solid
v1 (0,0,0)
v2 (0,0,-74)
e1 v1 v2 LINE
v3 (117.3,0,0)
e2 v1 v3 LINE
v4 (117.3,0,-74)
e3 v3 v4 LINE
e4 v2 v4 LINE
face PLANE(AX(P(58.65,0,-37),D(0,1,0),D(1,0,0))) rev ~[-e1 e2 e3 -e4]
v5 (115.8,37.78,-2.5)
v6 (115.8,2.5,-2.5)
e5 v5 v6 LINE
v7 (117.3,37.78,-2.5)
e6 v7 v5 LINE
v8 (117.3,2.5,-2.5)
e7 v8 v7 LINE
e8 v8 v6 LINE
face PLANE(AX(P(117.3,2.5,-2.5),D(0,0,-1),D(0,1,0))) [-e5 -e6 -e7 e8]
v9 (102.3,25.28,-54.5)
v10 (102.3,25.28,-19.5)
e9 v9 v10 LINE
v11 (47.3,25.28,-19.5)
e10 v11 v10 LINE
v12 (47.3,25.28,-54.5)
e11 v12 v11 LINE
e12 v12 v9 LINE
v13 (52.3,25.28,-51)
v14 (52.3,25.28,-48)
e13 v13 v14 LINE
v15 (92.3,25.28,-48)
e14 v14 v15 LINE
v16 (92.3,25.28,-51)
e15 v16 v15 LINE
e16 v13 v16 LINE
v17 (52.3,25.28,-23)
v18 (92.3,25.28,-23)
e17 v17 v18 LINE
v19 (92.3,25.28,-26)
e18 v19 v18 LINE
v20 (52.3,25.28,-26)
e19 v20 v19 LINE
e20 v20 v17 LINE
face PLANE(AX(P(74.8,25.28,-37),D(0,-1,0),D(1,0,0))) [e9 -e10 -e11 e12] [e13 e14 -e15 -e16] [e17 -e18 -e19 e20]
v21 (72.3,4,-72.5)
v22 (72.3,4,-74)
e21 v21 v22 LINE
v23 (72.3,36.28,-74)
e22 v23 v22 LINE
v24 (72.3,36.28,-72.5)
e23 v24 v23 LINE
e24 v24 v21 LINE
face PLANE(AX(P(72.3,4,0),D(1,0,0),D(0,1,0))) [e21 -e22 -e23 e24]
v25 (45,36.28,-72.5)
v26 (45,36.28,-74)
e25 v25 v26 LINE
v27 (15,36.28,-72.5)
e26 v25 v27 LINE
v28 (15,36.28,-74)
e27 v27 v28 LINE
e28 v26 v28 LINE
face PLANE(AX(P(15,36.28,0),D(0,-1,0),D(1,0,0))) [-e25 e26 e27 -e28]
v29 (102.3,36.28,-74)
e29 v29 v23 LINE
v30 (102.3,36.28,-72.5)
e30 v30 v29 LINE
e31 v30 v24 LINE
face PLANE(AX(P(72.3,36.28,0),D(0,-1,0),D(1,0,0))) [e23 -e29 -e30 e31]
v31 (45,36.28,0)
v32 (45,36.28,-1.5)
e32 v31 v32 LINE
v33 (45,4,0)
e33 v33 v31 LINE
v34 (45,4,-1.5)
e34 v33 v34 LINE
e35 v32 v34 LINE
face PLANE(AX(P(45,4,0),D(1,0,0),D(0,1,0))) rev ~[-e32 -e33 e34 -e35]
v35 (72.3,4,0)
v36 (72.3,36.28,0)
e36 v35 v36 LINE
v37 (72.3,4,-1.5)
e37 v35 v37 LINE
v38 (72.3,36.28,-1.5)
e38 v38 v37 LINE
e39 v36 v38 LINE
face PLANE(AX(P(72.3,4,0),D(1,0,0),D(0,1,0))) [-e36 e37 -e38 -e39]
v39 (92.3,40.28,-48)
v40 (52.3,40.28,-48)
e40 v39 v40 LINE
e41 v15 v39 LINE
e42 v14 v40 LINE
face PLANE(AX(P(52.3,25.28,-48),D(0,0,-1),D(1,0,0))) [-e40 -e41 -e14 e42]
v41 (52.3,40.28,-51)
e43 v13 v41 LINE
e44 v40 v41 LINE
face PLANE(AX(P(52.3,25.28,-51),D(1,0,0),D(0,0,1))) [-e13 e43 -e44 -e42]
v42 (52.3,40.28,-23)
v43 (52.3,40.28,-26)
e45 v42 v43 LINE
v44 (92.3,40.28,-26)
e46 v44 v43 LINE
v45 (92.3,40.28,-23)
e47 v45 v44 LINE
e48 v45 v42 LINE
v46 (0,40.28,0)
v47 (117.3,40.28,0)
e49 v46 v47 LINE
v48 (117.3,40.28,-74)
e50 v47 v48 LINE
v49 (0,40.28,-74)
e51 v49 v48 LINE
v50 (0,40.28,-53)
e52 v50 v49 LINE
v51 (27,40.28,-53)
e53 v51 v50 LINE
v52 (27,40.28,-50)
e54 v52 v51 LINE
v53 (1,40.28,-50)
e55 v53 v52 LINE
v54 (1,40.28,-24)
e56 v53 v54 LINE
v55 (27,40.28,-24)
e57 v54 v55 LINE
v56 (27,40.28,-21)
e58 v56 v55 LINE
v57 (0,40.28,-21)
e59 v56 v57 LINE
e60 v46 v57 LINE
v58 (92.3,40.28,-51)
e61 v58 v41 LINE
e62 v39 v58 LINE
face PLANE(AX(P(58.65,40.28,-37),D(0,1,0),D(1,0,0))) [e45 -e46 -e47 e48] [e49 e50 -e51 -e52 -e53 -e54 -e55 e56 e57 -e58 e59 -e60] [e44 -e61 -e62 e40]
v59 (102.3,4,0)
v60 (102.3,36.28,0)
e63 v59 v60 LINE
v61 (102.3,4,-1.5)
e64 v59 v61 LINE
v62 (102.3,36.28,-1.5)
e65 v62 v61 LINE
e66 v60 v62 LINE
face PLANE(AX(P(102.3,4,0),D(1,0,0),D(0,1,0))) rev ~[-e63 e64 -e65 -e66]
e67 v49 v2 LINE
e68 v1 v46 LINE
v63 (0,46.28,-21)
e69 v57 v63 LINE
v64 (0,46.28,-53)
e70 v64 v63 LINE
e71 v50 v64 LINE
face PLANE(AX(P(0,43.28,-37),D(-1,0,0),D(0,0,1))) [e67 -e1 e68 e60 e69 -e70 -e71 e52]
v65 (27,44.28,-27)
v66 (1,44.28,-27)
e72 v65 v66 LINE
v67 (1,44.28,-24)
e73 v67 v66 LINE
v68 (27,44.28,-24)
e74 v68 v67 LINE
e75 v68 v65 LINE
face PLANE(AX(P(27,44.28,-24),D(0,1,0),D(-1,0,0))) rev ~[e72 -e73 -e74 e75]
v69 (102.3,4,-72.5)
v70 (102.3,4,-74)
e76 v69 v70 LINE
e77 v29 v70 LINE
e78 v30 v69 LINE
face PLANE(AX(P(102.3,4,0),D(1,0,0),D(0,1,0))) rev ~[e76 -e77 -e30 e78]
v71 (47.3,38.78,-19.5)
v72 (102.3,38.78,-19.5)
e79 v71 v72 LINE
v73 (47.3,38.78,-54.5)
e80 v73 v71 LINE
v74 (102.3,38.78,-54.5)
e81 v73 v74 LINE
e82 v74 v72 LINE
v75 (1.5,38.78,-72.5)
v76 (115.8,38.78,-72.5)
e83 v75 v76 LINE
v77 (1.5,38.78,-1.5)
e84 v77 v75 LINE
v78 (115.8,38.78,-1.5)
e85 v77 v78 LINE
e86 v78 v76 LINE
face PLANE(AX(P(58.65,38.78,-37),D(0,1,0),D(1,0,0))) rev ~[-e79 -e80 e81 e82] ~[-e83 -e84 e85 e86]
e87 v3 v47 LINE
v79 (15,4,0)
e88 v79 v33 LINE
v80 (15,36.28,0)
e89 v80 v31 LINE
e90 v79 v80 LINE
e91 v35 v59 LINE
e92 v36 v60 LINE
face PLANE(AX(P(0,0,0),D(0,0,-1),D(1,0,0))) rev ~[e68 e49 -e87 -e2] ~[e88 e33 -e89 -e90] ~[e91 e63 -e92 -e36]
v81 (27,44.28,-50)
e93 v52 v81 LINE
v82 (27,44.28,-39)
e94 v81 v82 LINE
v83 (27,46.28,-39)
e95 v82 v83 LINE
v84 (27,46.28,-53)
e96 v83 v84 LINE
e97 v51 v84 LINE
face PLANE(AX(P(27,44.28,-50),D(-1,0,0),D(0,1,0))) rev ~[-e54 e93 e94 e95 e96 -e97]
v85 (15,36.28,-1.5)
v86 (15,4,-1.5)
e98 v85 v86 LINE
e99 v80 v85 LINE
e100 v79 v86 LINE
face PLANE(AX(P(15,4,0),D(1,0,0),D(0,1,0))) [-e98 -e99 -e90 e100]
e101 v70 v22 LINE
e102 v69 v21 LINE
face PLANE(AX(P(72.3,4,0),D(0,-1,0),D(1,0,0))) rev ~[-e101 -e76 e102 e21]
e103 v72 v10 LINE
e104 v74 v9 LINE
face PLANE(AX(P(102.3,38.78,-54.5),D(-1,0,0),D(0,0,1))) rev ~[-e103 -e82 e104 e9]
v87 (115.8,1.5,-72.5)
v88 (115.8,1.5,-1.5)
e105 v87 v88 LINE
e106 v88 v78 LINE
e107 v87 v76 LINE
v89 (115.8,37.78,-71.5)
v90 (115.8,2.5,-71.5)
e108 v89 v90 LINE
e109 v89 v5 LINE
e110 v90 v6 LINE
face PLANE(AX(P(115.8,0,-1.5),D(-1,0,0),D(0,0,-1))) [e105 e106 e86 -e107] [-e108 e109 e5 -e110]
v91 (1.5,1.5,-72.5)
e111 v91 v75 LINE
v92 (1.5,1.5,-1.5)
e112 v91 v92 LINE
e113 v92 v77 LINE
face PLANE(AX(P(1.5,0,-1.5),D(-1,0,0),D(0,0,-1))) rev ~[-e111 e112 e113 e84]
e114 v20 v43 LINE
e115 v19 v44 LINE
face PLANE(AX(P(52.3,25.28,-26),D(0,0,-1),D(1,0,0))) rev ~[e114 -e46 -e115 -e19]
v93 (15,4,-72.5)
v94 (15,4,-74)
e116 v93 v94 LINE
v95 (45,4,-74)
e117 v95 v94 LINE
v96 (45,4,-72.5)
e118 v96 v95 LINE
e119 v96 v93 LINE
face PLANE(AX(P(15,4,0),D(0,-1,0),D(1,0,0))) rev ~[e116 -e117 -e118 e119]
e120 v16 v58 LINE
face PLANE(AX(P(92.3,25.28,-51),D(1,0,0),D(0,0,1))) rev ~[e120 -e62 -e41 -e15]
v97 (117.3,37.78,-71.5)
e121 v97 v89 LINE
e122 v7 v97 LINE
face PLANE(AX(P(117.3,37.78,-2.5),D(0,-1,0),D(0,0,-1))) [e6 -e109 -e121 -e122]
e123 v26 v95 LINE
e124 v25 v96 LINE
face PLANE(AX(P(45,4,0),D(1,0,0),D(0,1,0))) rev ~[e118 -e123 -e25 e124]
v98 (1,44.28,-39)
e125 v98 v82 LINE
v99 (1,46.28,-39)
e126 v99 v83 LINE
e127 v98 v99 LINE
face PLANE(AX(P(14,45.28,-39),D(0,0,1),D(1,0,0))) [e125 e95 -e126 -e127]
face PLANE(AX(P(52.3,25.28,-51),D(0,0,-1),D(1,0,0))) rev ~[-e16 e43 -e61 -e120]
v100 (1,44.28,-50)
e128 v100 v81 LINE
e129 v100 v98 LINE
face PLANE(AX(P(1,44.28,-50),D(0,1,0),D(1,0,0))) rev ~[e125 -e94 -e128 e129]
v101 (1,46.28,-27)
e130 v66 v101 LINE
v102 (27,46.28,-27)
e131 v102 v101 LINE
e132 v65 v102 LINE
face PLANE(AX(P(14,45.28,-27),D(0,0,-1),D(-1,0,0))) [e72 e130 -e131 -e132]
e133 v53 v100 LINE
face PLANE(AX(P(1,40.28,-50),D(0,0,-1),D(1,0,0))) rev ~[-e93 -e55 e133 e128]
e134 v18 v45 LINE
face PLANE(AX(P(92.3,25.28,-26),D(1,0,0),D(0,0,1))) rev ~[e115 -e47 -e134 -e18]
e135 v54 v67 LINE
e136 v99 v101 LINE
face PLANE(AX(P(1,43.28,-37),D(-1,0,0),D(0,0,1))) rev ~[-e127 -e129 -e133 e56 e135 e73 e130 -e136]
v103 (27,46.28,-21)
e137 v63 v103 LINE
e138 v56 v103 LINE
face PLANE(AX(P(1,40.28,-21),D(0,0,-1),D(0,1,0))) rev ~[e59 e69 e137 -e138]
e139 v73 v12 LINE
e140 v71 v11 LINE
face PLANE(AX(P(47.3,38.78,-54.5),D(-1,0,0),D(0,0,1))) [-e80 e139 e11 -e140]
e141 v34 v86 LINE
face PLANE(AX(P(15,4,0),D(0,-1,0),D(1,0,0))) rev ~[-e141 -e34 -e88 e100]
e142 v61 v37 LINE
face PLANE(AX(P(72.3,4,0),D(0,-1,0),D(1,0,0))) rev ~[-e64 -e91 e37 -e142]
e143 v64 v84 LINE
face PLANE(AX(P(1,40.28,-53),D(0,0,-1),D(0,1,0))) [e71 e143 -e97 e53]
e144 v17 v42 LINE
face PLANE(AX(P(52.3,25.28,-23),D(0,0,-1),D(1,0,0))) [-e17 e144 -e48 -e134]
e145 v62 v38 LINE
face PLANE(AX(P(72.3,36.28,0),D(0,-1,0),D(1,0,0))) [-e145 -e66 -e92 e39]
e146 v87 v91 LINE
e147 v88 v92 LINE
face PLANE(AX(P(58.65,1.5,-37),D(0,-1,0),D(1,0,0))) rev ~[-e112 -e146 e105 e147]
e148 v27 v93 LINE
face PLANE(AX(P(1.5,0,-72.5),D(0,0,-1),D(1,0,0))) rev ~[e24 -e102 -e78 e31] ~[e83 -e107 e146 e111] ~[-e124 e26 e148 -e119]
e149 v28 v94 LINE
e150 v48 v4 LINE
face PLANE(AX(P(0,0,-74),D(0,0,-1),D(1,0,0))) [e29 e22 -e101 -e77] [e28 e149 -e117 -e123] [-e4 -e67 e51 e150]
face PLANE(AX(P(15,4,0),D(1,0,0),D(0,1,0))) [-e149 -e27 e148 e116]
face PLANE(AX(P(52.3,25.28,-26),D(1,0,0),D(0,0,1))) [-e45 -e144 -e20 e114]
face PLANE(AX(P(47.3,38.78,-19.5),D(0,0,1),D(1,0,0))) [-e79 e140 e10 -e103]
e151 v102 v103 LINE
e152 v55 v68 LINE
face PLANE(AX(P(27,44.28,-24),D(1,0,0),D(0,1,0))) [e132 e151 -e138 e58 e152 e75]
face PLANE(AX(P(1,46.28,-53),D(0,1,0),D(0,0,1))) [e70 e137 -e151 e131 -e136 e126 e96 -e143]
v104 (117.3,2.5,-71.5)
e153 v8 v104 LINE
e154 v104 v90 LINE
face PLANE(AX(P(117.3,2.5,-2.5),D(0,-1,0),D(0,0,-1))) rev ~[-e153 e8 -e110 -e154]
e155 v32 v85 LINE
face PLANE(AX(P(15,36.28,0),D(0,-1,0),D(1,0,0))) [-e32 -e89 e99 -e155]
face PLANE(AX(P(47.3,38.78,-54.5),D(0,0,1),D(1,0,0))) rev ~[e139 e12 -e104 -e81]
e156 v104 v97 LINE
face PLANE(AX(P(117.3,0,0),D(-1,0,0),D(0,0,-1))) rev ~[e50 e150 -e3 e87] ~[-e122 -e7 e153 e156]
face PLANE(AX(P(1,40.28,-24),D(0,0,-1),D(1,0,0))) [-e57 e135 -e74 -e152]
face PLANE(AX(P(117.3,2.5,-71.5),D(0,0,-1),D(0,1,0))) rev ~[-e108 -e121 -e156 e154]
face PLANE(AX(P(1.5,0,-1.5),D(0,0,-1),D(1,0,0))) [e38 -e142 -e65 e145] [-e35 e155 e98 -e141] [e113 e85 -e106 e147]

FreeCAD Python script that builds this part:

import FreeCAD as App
import Part
import Sketcher

V = App.Vector
Q = App.Units.Quantity


def add_polygon(sketch, points):
    """Adds a closed chain of lines whose ends are joined by coincident constraints."""
    first, n = sketch.GeometryCount, len(points)
    for a, b in zip(points, points[1:] + points[:1]):
        sketch.addGeometry(Part.LineSegment(App.Vector(*a, 0), App.Vector(*b, 0)), False)
    for i in range(n):
        sketch.addConstraint(Sketcher.Constraint("Coincident", first + i, 2, first + (i + 1) % n, 1))

doc = App.newDocument("Part")
body = doc.addObject("PartDesign::Body", "Body")

# Sketch on XZ plane
sketch1 = body.newObject("Sketcher::SketchObject", "Sketch")
sketch1.AttachmentSupport = (doc.getObject("XZ_Plane"), [""])
sketch1.MapMode = "FlatFace"
add_polygon(sketch1, [(0, -74), (0, 0), (117.3, 0), (117.3, -74)])  # lines 0-3
add_polygon(sketch1, [(115.8, -1.5), (1.5, -1.5), (1.5, -72.5), (115.8, -72.5)])  # lines 4-7
sketch1.addConstraint([
    Sketcher.Constraint("Vertical", 0),
    Sketcher.Constraint("Horizontal", 1),
    Sketcher.Constraint("Vertical", 2),
    Sketcher.Constraint("Horizontal", 3),
    Sketcher.Constraint("Horizontal", 4),
    Sketcher.Constraint("Vertical", 5),
    Sketcher.Constraint("Horizontal", 6),
    Sketcher.Constraint("Vertical", 7),
    Sketcher.Constraint("Coincident", 0, 2, -1, 1),
    Sketcher.Constraint("DistanceY", 0, 1, 0, 2, Q("74 mm")),
    Sketcher.Constraint("DistanceY", 5, 2, 5, 1, Q("71 mm")),
    Sketcher.Constraint("DistanceX", 1, 1, 1, 2, Q("117.3 mm")),
    Sketcher.Constraint("DistanceX", 4, 2, 4, 1, Q("114.3 mm")),
    Sketcher.Constraint("DistanceX", -1, 1, 4, 2, Q("1.5 mm")),
    Sketcher.Constraint("DistanceY", 4, 2, -1, 1, Q("1.5 mm")),
])
pad1 = body.newObject("PartDesign::Pad", "Pad")
pad1.Profile = sketch1
pad1.Length = 40.28
pad1.Reversed = True

# Sketch on XZ plane
sketch2 = body.newObject("Sketcher::SketchObject", "Sketch001")
sketch2.AttachmentSupport = (doc.getObject("XZ_Plane"), [""])
sketch2.MapMode = "FlatFace"
add_polygon(sketch2, [(0, 0), (0, -74), (117.3, -74), (117.3, 0)])  # lines 0-3
sketch2.addConstraint([
    Sketcher.Constraint("Vertical", 0),
    Sketcher.Constraint("Horizontal", 1),
    Sketcher.Constraint("Vertical", 2),
    Sketcher.Constraint("Horizontal", 3),
    Sketcher.Constraint("Coincident", 3, 2, -1, 1),
    Sketcher.Constraint("DistanceY", 0, 2, 0, 1, Q("74 mm")),
    Sketcher.Constraint("DistanceX", 1, 1, 1, 2, Q("117.3 mm")),
])
pad2 = body.newObject("PartDesign::Pad", "Pad001")
pad2.Profile = sketch2
pad2.Length = 1.5
pad2.Reversed = True

# Sketch on YZ plane
sketch3 = body.newObject("Sketcher::SketchObject", "Sketch002")
sketch3.AttachmentSupport = (doc.getObject("YZ_Plane"), [""])
sketch3.MapMode = "FlatFace"
sketch3.AttachmentOffset = App.Placement(V(0, 0, 117.3), App.Rotation())
add_polygon(sketch3, [(37.78, -2.5), (2.5, -2.5), (2.5, -71.5), (37.78, -71.5)])  # lines 0-3
sketch3.addConstraint([
    Sketcher.Constraint("Horizontal", 0),
    Sketcher.Constraint("Vertical", 1),
    Sketcher.Constraint("Horizontal", 2),
    Sketcher.Constraint("Vertical", 3),
    Sketcher.Constraint("DistanceY", 1, 2, 1, 1, Q("69 mm")),
    Sketcher.Constraint("DistanceX", 0, 2, 0, 1, Q("35.28 mm")),
    Sketcher.Constraint("DistanceX", -1, 1, 0, 2, Q("2.5 mm")),
    Sketcher.Constraint("DistanceY", 0, 2, -1, 1, Q("2.5 mm")),
])
pocket1 = body.newObject("PartDesign::Pocket", "Pocket")
pocket1.Profile = sketch3
pocket1.Length = 2

# Sketch on XZ plane
sketch4 = body.newObject("Sketcher::SketchObject", "Sketch003")
sketch4.AttachmentSupport = (doc.getObject("XZ_Plane"), [""])
sketch4.MapMode = "FlatFace"
sketch4.AttachmentOffset = App.Placement(V(0, 0, -40.28), App.Rotation())
add_polygon(sketch4, [(0, -74), (0, 0), (117.3, 0), (117.3, -74)])  # lines 0-3
sketch4.addConstraint([
    Sketcher.Constraint("Vertical", 0),
    Sketcher.Constraint("Horizontal", 1),
    Sketcher.Constraint("Vertical", 2),
    Sketcher.Constraint("Horizontal", 3),
    Sketcher.Constraint("Coincident", 0, 2, -1, 1),
    Sketcher.Constraint("DistanceY", 0, 1, 0, 2, Q("74 mm")),
    Sketcher.Constraint("DistanceX", 1, 1, 1, 2, Q("117.3 mm")),
])
pad3 = body.newObject("PartDesign::Pad", "Pad002")
pad3.Profile = sketch4
pad3.Length = 1.5

# Sketch on XZ plane
sketch5 = body.newObject("Sketcher::SketchObject", "Sketch004")
sketch5.AttachmentSupport = (doc.getObject("XZ_Plane"), [""])
sketch5.MapMode = "FlatFace"
sketch5.AttachmentOffset = App.Placement(V(0, 0, -40.28), App.Rotation())
add_polygon(sketch5, [(1, -53), (1, -50), (27, -50), (27, -53)])  # lines 0-3
add_polygon(sketch5, [(1, -24), (1, -21), (27, -21), (27, -24)])  # lines 4-7
sketch5.addConstraint([
    Sketcher.Constraint("Vertical", 0),
    Sketcher.Constraint("Horizontal", 1),
    Sketcher.Constraint("Vertical", 2),
    Sketcher.Constraint("Horizontal", 3),
    Sketcher.Constraint("Vertical", 4),
    Sketcher.Constraint("Horizontal", 5),
    Sketcher.Constraint("Vertical", 6),
    Sketcher.Constraint("Horizontal", 7),
    Sketcher.Constraint("Vertical", 3, 2, 4, 2),
    Sketcher.Constraint("Vertical", 2, 2, 5, 2),
    Sketcher.Constraint("Equal", 2, 4),
    Sketcher.Constraint("DistanceX", 1, 1, 1, 2, Q("26 mm")),
    Sketcher.Constraint("DistanceY", 0, 1, 0, 2, Q("3 mm")),
    Sketcher.Constraint("DistanceX", -1, 1, 0, 2, Q("1 mm")),
    Sketcher.Constraint("DistanceY", 0, 2, -1, 1, Q("50 mm")),
    Sketcher.Constraint("DistanceY", 4, 2, -1, 1, Q("21 mm")),
])
pad4 = body.newObject("PartDesign::Pad", "Pad003")
pad4.Profile = sketch5
pad4.Length = 6
pad4.Reversed = True

# Sketch on XY plane
sketch6 = body.newObject("Sketcher::SketchObject", "Sketch005")
sketch6.AttachmentSupport = (doc.getObject("XY_Plane"), [""])
sketch6.MapMode = "FlatFace"
sketch6.AttachmentOffset = App.Placement(V(0, 0, -50), App.Rotation())
add_polygon(sketch6, [(1, 46.28), (1, 44.28), (27, 44.28), (27, 46.28)])  # lines 0-3
sketch6.addConstraint([
    Sketcher.Constraint("Vertical", 0),
    Sketcher.Constraint("Horizontal", 1),
    Sketcher.Constraint("Vertical", 2),
    Sketcher.Constraint("Horizontal", 3),
    Sketcher.Constraint("DistanceX", 1, 1, 1, 2, Q("26 mm")),
    Sketcher.Constraint("DistanceY", 0, 2, 0, 1, Q("2 mm")),
    Sketcher.Constraint("DistanceX", -1, 1, 0, 2, Q("1 mm")),
    Sketcher.Constraint("DistanceY", -1, 1, 0, 2, Q("44.28 mm")),
])
pad5 = body.newObject("PartDesign::Pad", "Pad004")
pad5.Profile = sketch6
pad5.Length = 11

# Sketch on XY plane
sketch7 = body.newObject("Sketcher::SketchObject", "Sketch006")
sketch7.AttachmentSupport = (doc.getObject("XY_Plane"), [""])
sketch7.MapMode = "FlatFace"
sketch7.AttachmentOffset = App.Placement(V(0, 0, -24), App.Rotation())
add_polygon(sketch7, [(27, 46.28), (27, 44.28), (1, 44.28), (1, 46.28)])  # lines 0-3
sketch7.addConstraint([
    Sketcher.Constraint("Vertical", 0),
    Sketcher.Constraint("Horizontal", 1),
    Sketcher.Constraint("Vertical", 2),
    Sketcher.Constraint("Horizontal", 3),
    Sketcher.Constraint("DistanceX", 1, 2, 1, 1, Q("26 mm")),
    Sketcher.Constraint("DistanceY", 0, 2, 0, 1, Q("2 mm")),
    Sketcher.Constraint("DistanceX", -1, 1, 0, 2, Q("27 mm")),
    Sketcher.Constraint("DistanceY", -1, 1, 0, 2, Q("44.28 mm")),
])
pad6 = body.newObject("PartDesign::Pad", "Pad005")
pad6.Profile = sketch7
pad6.Length = 3
pad6.Reversed = True

# Sketch on YZ plane
sketch8 = body.newObject("Sketcher::SketchObject", "Sketch007")
sketch8.AttachmentSupport = (doc.getObject("YZ_Plane"), [""])
sketch8.MapMode = "FlatFace"
sketch8.AttachmentOffset = App.Placement(V(0, 0, 1), App.Rotation())
add_polygon(sketch8, [(46.28, -53), (40.28, -53), (40.28, -21), (46.28, -21)])  # lines 0-3
sketch8.addConstraint([
    Sketcher.Constraint("Horizontal", 0),
    Sketcher.Constraint("Vertical", 1),
    Sketcher.Constraint("Horizontal", 2),
    Sketcher.Constraint("Vertical", 3),
    Sketcher.Constraint("DistanceX", 0, 2, 0, 1, Q("6 mm")),
    Sketcher.Constraint("DistanceY", 1, 1, 1, 2, Q("32 mm")),
    Sketcher.Constraint("DistanceY", 0, 2, -1, 1, Q("53 mm")),
    Sketcher.Constraint("DistanceX", -1, 1, 0, 2, Q("40.28 mm")),
])
pad7 = body.newObject("PartDesign::Pad", "Pad006")
pad7.Profile = sketch8
pad7.Length = 1
pad7.Reversed = True

# Sketch on XY plane
sketch9 = body.newObject("Sketcher::SketchObject", "Sketch008")
sketch9.AttachmentSupport = (doc.getObject("XY_Plane"), [""])
sketch9.MapMode = "FlatFace"
add_polygon(sketch9, [(15, 36.28), (15, 4), (45, 4), (45, 36.28)])  # lines 0-3
add_polygon(sketch9, [(72.3, 36.28), (72.3, 4), (102.3, 4), (102.3, 36.28)])  # lines 4-7
sketch9.addConstraint([
    Sketcher.Constraint("Vertical", 0),
    Sketcher.Constraint("Horizontal", 1),
    Sketcher.Constraint("Vertical", 2),
    Sketcher.Constraint("Horizontal", 3),
    Sketcher.Constraint("Vertical", 4),
    Sketcher.Constraint("Horizontal", 5),
    Sketcher.Constraint("Vertical", 6),
    Sketcher.Constraint("Horizontal", 7),
    Sketcher.Constraint("Horizontal", 1, 2, 4, 2),
    Sketcher.Constraint("Horizontal", 3, 2, 6, 2),
    Sketcher.Constraint("Equal", 3, 5),
    Sketcher.Constraint("DistanceX", 1, 1, 1, 2, Q("30 mm")),
    Sketcher.Constraint("DistanceX", -1, 1, 0, 2, Q("15 mm")),
    Sketcher.Constraint("DistanceY", -1, 1, 0, 2, Q("4 mm")),
    Sketcher.Constraint("DistanceY", 0, 2, 0, 1, Q("32.28 mm")),
    Sketcher.Constraint("DistanceX", -1, 1, 4, 2, Q("72.3 mm")),
])
pocket2 = body.newObject("PartDesign::Pocket", "Pocket001")
pocket2.Profile = sketch9
pocket2.Type = "ThroughAll"

# Sketch on XZ plane
sketch10 = body.newObject("Sketcher::SketchObject", "Sketch009")
sketch10.AttachmentSupport = (doc.getObject("XZ_Plane"), [""])
sketch10.MapMode = "FlatFace"
sketch10.AttachmentOffset = App.Placement(V(0, 0, -38.78), App.Rotation())
add_polygon(sketch10, [(47.3, -19.5), (47.3, -54.5), (102.3, -54.5), (102.3, -19.5)])  # lines 0-3
sketch10.addConstraint([
    Sketcher.Constraint("Vertical", 0),
    Sketcher.Constraint("Horizontal", 1),
    Sketcher.Constraint("Vertical", 2),
    Sketcher.Constraint("Horizontal", 3),
    Sketcher.Constraint("DistanceX", 1, 1, 1, 2, Q("55 mm")),
    Sketcher.Constraint("DistanceY", 0, 2, 0, 1, Q("35 mm")),
    Sketcher.Constraint("DistanceX", -1, 1, 0, 2, Q("47.3 mm")),
    Sketcher.Constraint("DistanceY", 0, 2, -1, 1, Q("54.5 mm")),
])
pad8 = body.newObject("PartDesign::Pad", "Pad007")
pad8.Profile = sketch10
pad8.Length = 13.5

# Sketch on XZ plane
sketch11 = body.newObject("Sketcher::SketchObject", "Sketch010")
sketch11.AttachmentSupport = (doc.getObject("XZ_Plane"), [""])
sketch11.MapMode = "FlatFace"
sketch11.AttachmentOffset = App.Placement(V(0, 0, -25.28), App.Rotation())
add_polygon(sketch11, [(52.3, -23), (52.3, -26), (92.3, -26), (92.3, -23)])  # lines 0-3
add_polygon(sketch11, [(52.3, -48), (52.3, -51), (92.3, -51), (92.3, -48)])  # lines 4-7
sketch11.addConstraint([
    Sketcher.Constraint("Vertical", 0),
    Sketcher.Constraint("Horizontal", 1),
    Sketcher.Constraint("Vertical", 2),
    Sketcher.Constraint("Horizontal", 3),
    Sketcher.Constraint("Vertical", 4),
    Sketcher.Constraint("Horizontal", 5),
    Sketcher.Constraint("Vertical", 6),
    Sketcher.Constraint("Horizontal", 7),
    Sketcher.Constraint("Vertical", 3, 2, 4, 2),
    Sketcher.Constraint("Vertical", 2, 2, 5, 2),
    Sketcher.Constraint("Equal", 2, 4),
    Sketcher.Constraint("DistanceX", 1, 1, 1, 2, Q("40 mm")),
    Sketcher.Constraint("DistanceY", 0, 2, 0, 1, Q("3 mm")),
    Sketcher.Constraint("DistanceY", 0, 2, -1, 1, Q("26 mm")),
    Sketcher.Constraint("DistanceY", 4, 2, -1, 1, Q("51 mm")),
    Sketcher.Constraint("DistanceX", -1, 1, 0, 2, Q("52.3 mm")),
])
pocket3 = body.newObject("PartDesign::Pocket", "Pocket002")
pocket3.Profile = sketch11
pocket3.Type = "ThroughAll"

doc.recompute()
